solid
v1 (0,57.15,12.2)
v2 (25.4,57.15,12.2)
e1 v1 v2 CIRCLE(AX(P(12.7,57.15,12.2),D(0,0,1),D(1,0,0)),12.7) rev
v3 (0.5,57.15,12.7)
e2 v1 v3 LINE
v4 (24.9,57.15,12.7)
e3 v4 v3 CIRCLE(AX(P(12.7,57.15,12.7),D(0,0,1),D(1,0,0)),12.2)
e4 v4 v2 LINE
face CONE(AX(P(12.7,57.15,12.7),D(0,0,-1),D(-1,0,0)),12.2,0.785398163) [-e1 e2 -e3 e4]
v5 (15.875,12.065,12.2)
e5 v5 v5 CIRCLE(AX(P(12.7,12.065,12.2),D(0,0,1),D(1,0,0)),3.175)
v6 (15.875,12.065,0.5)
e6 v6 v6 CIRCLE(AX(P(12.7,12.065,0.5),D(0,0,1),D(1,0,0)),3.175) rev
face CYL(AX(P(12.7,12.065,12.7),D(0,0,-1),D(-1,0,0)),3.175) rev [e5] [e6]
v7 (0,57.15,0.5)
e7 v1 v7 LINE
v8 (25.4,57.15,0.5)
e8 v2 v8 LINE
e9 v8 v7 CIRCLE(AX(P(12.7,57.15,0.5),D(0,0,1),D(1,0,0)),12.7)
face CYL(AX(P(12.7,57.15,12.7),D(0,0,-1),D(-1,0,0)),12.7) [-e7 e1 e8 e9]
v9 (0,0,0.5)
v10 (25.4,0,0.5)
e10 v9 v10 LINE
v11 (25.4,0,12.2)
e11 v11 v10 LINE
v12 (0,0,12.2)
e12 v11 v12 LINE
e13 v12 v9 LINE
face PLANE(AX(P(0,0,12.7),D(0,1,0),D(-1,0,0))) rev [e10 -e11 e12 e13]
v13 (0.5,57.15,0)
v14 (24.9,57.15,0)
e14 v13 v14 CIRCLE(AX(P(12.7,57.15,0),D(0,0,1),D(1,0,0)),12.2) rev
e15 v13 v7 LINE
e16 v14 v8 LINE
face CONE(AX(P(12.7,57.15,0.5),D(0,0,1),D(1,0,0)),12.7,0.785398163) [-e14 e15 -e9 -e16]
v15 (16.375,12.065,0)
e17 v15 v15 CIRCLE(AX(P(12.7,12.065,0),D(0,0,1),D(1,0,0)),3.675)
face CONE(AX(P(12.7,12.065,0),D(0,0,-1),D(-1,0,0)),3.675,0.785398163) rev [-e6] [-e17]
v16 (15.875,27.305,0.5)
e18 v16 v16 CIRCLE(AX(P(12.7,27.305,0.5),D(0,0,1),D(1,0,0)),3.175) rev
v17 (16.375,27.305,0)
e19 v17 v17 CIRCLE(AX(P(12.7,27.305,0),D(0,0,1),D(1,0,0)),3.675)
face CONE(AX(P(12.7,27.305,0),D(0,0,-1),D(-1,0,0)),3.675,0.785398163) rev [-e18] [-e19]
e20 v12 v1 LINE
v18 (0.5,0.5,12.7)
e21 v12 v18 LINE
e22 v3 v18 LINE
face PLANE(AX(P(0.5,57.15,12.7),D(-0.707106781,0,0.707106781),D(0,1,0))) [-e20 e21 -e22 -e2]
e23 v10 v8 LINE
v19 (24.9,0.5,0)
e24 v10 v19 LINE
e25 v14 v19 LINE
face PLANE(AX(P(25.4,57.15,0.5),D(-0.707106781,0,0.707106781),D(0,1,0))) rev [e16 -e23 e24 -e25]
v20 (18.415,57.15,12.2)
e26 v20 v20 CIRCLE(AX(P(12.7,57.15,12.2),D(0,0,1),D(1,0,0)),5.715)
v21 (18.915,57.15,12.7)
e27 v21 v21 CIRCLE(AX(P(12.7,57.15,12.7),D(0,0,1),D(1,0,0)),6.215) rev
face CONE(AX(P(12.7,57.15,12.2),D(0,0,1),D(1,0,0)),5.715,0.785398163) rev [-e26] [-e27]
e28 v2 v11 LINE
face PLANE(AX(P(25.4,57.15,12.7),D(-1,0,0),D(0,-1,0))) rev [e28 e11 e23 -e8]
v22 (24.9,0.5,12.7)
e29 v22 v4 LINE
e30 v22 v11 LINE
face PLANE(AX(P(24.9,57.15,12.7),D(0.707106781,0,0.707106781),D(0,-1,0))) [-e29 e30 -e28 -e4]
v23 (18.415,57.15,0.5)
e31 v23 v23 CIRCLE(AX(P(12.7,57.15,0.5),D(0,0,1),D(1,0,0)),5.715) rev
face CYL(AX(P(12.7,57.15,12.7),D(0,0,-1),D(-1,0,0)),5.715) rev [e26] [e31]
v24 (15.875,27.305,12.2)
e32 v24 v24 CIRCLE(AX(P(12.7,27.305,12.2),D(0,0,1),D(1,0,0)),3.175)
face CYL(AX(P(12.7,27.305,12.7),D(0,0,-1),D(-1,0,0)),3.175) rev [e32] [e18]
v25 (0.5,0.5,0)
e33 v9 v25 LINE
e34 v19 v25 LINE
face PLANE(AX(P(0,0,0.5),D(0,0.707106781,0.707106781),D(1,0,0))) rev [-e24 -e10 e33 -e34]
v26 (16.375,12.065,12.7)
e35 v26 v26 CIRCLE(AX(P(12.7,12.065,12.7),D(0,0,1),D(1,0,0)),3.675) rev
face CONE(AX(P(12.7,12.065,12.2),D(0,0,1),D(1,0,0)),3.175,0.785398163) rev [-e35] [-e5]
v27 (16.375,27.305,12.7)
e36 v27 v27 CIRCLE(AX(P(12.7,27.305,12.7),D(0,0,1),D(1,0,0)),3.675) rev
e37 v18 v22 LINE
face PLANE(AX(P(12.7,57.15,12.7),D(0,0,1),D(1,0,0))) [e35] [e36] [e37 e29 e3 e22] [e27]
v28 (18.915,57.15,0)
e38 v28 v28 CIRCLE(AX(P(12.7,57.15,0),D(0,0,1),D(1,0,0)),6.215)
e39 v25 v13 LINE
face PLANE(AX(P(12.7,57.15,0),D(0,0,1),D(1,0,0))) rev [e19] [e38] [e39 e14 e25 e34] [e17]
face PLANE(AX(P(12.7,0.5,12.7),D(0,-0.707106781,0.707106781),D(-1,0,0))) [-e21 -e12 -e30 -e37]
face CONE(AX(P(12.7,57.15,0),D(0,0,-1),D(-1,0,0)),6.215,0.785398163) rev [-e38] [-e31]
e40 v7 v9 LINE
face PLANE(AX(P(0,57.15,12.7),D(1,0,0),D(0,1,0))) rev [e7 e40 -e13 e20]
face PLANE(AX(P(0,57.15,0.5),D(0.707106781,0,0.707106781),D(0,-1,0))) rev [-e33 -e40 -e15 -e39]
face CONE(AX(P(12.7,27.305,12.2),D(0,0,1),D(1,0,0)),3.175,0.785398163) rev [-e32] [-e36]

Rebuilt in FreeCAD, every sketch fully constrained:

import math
import FreeCAD as App
import Part
import Sketcher
Q = App.Units.Quantity


def edges_at(feature, points):
    """Names of the edges that pass closest to the given points."""
    edges = feature.Shape.Edges
    near = lambda p: min(range(len(edges)), key=lambda i: edges[i].distToShape(Part.Vertex(*p))[0])
    return sorted({f"Edge{near(p) + 1}" for p in points})

doc = App.newDocument("Part")
body = doc.addObject("PartDesign::Body", "Body")

# Sketch on XY plane
sketch1 = doc.addObject("Sketcher::SketchObject", "Sketch")
body.addObject(sketch1)
sketch1.AttachmentSupport = (doc.XY_Plane, [""])
sketch1.MapMode = "FlatFace"
sketch1.addGeometry([
    Part.LineSegment(App.Vector(0, 0, 0), App.Vector(25.4, 0, 0)),  # 0
    Part.LineSegment(App.Vector(25.4, 0, 0), App.Vector(25.4, 57.1, 0)),  # 1
    Part.ArcOfCircle(Part.Circle(App.Vector(12.7, 57.1, 0), App.Vector(0, 0, 1), 12.7), math.radians(0), math.radians(180)),  # 2
    Part.LineSegment(App.Vector(0, 57.1, 0), App.Vector(0, 0, 0)),  # 3
    Part.Circle(App.Vector(12.7, 12.1, 0), App.Vector(0, 0, 1), 3.2),  # 4
    Part.Circle(App.Vector(12.7, 27.3, 0), App.Vector(0, 0, 1), 3.2),  # 5
    Part.Circle(App.Vector(12.7, 57.1, 0), App.Vector(0, 0, 1), 5.7),  # 6
], False)
sketch1.addConstraint([
    Sketcher.Constraint("Coincident", 0, 2, 1, 1),
    Sketcher.Constraint("Tangent", 1, 2, 2, 1),
    Sketcher.Constraint("Tangent", 2, 2, 3, 1),
    Sketcher.Constraint("Coincident", 3, 2, 0, 1),
    Sketcher.Constraint("Horizontal", 0),
    Sketcher.Constraint("Vertical", 1),
    Sketcher.Constraint("Vertical", 3),
    Sketcher.Constraint("Coincident", 3, 2, -1, 1),
    Sketcher.Constraint("Coincident", 6, 3, 2, 3),
    Sketcher.Constraint("Equal", 4, 5),
    Sketcher.Constraint("Vertical", 2, 3, 4, 3),
    Sketcher.Constraint("Vertical", 4, 3, 5, 3),
    Sketcher.Constraint("Radius", 2, Q("0.5 in")),
    Sketcher.Constraint("Diameter", 4, Q("0.25 in")),
    Sketcher.Constraint("Diameter", 6, Q("0.45 in")),
    Sketcher.Constraint("DistanceY", 1, 1, 1, 2, Q("2.25 in")),
    Sketcher.Constraint("DistanceY", 4, 3, 5, 3, Q("0.6 in")),
    Sketcher.Constraint("DistanceY", -1, 1, 4, 3, Q("0.475 in")),
])
pad1 = doc.addObject("PartDesign::Pad", "Pad")
body.addObject(pad1)
pad1.Profile = sketch1
pad1.Length = Q("0.5 in")
doc.recompute()

chamfer = doc.addObject("PartDesign::Chamfer", "Chamfer")
body.addObject(chamfer)
chamfer.Base = (pad1, edges_at(pad1, [
    (25.4, 28.575, 12.7),
    (9.525, 27.305, 0),
    (9.525, 27.305, 12.7),
    (12.7, 69.85, 12.7),
    (6.985, 57.15, 0),
    (6.985, 57.15, 12.7),
    (9.525, 12.065, 0),
    (9.525, 12.065, 12.7),
    (0, 28.575, 12.7),
    (0, 28.575, 0),
    (12.7, 69.85, 0),
    (25.4, 28.575, 0),
    (12.7, 0, 0),
    (12.7, 0, 12.7),
]))
chamfer.Size = 0.5

doc.recompute()
